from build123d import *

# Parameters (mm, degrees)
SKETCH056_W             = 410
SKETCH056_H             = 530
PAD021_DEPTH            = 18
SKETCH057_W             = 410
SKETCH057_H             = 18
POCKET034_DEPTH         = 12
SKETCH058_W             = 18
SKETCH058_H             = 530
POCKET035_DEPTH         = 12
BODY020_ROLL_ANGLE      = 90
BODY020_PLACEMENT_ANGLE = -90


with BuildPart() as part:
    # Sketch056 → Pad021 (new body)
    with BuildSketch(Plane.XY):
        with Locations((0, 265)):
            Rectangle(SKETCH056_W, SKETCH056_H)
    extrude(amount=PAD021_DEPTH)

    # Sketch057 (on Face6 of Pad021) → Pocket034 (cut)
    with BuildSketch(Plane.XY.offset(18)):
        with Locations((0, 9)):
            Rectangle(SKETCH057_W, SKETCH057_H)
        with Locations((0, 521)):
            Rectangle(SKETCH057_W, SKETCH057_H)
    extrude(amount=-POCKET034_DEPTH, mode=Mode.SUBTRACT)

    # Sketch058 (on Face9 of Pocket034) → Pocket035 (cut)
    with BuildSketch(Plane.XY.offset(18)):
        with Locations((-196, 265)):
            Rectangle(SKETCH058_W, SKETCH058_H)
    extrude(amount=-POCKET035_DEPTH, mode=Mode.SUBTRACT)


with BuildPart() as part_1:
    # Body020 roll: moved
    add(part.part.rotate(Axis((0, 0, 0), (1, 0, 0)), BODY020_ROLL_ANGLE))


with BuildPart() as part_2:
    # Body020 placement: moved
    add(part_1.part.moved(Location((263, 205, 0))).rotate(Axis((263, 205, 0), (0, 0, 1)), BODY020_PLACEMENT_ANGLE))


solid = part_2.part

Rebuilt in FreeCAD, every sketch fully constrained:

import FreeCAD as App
import Part
import Sketcher
from FreeCAD import Vector
Q = App.Units.Quantity


def add_polygon(sketch, points):
    """Adds a closed chain of lines whose ends are joined by coincident constraints."""
    first, n = sketch.GeometryCount, len(points)
    for a, b in zip(points, points[1:] + points[:1]):
        sketch.addGeometry(Part.LineSegment(App.Vector(*a, 0), App.Vector(*b, 0)), False)
    for i in range(n):
        sketch.addConstraint(Sketcher.Constraint("Coincident", first + i, 2, first + (i + 1) % n, 1))

doc = App.newDocument("Part")
body = doc.addObject("PartDesign::Body", "Body")

sketch1 = body.newObject("Sketcher::SketchObject", "Sketch")
sketch1.AttachmentSupport = (doc.getObject("XY_Plane"), [""])
sketch1.MapMode = "FlatFace"
add_polygon(sketch1, [(-205, 530), (-205, 0), (205, 0), (205, 530)])
sketch1.addConstraint([
    Sketcher.Constraint("Vertical", 0),
    Sketcher.Constraint("Horizontal", 1),
    Sketcher.Constraint("Vertical", 2),
    Sketcher.Constraint("Horizontal", 3),
    Sketcher.Constraint("Symmetric", 0, 2, 1, 2, -1, 1),
    Sketcher.Constraint("DistanceX", 1, 1, 1, 2, Q("410 mm")),
    Sketcher.Constraint("DistanceY", 0, 2, 0, 1, Q("530 mm")),
])
pad1 = body.newObject("PartDesign::Pad", "Pad")
pad1.Profile = sketch1
pad1.Length = 18

sketch2 = body.newObject("Sketcher::SketchObject", "Sketch001")
sketch2.AttachmentSupport = (doc.getObject("XY_Plane"), [""])
sketch2.MapMode = "FlatFace"
sketch2.AttachmentOffset = App.Placement(Vector(0, 0, 18), App.Rotation())
add_polygon(sketch2, [(-205, 18), (-205, 0), (205, 0), (205, 18)])
add_polygon(sketch2, [(-205, 530), (-205, 512), (205, 512), (205, 530)])
sketch2.addConstraint([
    Sketcher.Constraint("Vertical", 0),
    Sketcher.Constraint("Horizontal", 1),
    Sketcher.Constraint("Vertical", 2),
    Sketcher.Constraint("Horizontal", 3),
    Sketcher.Constraint("Vertical", 4),
    Sketcher.Constraint("Horizontal", 5),
    Sketcher.Constraint("Vertical", 6),
    Sketcher.Constraint("Horizontal", 7),
    Sketcher.Constraint("Symmetric", 0, 2, 1, 2, -1, 1),
    Sketcher.Constraint("Vertical", 3, 2, 4, 2),
    Sketcher.Constraint("Vertical", 2, 2, 5, 2),
    Sketcher.Constraint("Equal", 2, 4),
    Sketcher.Constraint("DistanceX", 1, 1, 1, 2, Q("410 mm")),
    Sketcher.Constraint("DistanceY", 0, 2, 0, 1, Q("18 mm")),
    Sketcher.Constraint("DistanceY", -1, 1, 4, 2, Q("512 mm")),
])
pocket1 = body.newObject("PartDesign::Pocket", "Pocket")
pocket1.Profile = sketch2
pocket1.Length = 12

sketch3 = body.newObject("Sketcher::SketchObject", "Sketch002")
sketch3.AttachmentSupport = (doc.getObject("XY_Plane"), [""])
sketch3.MapMode = "FlatFace"
sketch3.AttachmentOffset = App.Placement(Vector(0, 0, 18), App.Rotation())
add_polygon(sketch3, [(-205, 530), (-205, 0), (-187, 0), (-187, 530)])
sketch3.addConstraint([
    Sketcher.Constraint("Vertical", 0),
    Sketcher.Constraint("Horizontal", 1),
    Sketcher.Constraint("Vertical", 2),
    Sketcher.Constraint("Horizontal", 3),
    Sketcher.Constraint("PointOnObject", 0, 2, -1),
    Sketcher.Constraint("DistanceX", 1, 1, 1, 2, Q("18 mm")),
    Sketcher.Constraint("DistanceY", 0, 2, 0, 1, Q("530 mm")),
    Sketcher.Constraint("DistanceX", 0, 2, -1, 1, Q("205 mm")),
])
pocket2 = body.newObject("PartDesign::Pocket", "Pocket001")
pocket2.Profile = sketch3
pocket2.Length = 12
body2 = doc.addObject("PartDesign::Body", "Body001")
doc.recompute()

body.Placement = App.Placement(Vector(0, 0, 0), App.Rotation(Vector(1, 0, 0), 90))
boolean = body2.newObject("PartDesign::Boolean", "Boolean")
boolean.Type = "Fuse"
boolean.addObjects([body])
body3 = doc.addObject("PartDesign::Body", "Body002")
doc.recompute()

body2.Placement = App.Placement(Vector(263, 205, 0), App.Rotation(Vector(0, 0, 1), 270))
boolean2 = body3.newObject("PartDesign::Boolean", "Boolean001")
boolean2.Type = "Fuse"
boolean2.addObjects([body2])

doc.recompute()
